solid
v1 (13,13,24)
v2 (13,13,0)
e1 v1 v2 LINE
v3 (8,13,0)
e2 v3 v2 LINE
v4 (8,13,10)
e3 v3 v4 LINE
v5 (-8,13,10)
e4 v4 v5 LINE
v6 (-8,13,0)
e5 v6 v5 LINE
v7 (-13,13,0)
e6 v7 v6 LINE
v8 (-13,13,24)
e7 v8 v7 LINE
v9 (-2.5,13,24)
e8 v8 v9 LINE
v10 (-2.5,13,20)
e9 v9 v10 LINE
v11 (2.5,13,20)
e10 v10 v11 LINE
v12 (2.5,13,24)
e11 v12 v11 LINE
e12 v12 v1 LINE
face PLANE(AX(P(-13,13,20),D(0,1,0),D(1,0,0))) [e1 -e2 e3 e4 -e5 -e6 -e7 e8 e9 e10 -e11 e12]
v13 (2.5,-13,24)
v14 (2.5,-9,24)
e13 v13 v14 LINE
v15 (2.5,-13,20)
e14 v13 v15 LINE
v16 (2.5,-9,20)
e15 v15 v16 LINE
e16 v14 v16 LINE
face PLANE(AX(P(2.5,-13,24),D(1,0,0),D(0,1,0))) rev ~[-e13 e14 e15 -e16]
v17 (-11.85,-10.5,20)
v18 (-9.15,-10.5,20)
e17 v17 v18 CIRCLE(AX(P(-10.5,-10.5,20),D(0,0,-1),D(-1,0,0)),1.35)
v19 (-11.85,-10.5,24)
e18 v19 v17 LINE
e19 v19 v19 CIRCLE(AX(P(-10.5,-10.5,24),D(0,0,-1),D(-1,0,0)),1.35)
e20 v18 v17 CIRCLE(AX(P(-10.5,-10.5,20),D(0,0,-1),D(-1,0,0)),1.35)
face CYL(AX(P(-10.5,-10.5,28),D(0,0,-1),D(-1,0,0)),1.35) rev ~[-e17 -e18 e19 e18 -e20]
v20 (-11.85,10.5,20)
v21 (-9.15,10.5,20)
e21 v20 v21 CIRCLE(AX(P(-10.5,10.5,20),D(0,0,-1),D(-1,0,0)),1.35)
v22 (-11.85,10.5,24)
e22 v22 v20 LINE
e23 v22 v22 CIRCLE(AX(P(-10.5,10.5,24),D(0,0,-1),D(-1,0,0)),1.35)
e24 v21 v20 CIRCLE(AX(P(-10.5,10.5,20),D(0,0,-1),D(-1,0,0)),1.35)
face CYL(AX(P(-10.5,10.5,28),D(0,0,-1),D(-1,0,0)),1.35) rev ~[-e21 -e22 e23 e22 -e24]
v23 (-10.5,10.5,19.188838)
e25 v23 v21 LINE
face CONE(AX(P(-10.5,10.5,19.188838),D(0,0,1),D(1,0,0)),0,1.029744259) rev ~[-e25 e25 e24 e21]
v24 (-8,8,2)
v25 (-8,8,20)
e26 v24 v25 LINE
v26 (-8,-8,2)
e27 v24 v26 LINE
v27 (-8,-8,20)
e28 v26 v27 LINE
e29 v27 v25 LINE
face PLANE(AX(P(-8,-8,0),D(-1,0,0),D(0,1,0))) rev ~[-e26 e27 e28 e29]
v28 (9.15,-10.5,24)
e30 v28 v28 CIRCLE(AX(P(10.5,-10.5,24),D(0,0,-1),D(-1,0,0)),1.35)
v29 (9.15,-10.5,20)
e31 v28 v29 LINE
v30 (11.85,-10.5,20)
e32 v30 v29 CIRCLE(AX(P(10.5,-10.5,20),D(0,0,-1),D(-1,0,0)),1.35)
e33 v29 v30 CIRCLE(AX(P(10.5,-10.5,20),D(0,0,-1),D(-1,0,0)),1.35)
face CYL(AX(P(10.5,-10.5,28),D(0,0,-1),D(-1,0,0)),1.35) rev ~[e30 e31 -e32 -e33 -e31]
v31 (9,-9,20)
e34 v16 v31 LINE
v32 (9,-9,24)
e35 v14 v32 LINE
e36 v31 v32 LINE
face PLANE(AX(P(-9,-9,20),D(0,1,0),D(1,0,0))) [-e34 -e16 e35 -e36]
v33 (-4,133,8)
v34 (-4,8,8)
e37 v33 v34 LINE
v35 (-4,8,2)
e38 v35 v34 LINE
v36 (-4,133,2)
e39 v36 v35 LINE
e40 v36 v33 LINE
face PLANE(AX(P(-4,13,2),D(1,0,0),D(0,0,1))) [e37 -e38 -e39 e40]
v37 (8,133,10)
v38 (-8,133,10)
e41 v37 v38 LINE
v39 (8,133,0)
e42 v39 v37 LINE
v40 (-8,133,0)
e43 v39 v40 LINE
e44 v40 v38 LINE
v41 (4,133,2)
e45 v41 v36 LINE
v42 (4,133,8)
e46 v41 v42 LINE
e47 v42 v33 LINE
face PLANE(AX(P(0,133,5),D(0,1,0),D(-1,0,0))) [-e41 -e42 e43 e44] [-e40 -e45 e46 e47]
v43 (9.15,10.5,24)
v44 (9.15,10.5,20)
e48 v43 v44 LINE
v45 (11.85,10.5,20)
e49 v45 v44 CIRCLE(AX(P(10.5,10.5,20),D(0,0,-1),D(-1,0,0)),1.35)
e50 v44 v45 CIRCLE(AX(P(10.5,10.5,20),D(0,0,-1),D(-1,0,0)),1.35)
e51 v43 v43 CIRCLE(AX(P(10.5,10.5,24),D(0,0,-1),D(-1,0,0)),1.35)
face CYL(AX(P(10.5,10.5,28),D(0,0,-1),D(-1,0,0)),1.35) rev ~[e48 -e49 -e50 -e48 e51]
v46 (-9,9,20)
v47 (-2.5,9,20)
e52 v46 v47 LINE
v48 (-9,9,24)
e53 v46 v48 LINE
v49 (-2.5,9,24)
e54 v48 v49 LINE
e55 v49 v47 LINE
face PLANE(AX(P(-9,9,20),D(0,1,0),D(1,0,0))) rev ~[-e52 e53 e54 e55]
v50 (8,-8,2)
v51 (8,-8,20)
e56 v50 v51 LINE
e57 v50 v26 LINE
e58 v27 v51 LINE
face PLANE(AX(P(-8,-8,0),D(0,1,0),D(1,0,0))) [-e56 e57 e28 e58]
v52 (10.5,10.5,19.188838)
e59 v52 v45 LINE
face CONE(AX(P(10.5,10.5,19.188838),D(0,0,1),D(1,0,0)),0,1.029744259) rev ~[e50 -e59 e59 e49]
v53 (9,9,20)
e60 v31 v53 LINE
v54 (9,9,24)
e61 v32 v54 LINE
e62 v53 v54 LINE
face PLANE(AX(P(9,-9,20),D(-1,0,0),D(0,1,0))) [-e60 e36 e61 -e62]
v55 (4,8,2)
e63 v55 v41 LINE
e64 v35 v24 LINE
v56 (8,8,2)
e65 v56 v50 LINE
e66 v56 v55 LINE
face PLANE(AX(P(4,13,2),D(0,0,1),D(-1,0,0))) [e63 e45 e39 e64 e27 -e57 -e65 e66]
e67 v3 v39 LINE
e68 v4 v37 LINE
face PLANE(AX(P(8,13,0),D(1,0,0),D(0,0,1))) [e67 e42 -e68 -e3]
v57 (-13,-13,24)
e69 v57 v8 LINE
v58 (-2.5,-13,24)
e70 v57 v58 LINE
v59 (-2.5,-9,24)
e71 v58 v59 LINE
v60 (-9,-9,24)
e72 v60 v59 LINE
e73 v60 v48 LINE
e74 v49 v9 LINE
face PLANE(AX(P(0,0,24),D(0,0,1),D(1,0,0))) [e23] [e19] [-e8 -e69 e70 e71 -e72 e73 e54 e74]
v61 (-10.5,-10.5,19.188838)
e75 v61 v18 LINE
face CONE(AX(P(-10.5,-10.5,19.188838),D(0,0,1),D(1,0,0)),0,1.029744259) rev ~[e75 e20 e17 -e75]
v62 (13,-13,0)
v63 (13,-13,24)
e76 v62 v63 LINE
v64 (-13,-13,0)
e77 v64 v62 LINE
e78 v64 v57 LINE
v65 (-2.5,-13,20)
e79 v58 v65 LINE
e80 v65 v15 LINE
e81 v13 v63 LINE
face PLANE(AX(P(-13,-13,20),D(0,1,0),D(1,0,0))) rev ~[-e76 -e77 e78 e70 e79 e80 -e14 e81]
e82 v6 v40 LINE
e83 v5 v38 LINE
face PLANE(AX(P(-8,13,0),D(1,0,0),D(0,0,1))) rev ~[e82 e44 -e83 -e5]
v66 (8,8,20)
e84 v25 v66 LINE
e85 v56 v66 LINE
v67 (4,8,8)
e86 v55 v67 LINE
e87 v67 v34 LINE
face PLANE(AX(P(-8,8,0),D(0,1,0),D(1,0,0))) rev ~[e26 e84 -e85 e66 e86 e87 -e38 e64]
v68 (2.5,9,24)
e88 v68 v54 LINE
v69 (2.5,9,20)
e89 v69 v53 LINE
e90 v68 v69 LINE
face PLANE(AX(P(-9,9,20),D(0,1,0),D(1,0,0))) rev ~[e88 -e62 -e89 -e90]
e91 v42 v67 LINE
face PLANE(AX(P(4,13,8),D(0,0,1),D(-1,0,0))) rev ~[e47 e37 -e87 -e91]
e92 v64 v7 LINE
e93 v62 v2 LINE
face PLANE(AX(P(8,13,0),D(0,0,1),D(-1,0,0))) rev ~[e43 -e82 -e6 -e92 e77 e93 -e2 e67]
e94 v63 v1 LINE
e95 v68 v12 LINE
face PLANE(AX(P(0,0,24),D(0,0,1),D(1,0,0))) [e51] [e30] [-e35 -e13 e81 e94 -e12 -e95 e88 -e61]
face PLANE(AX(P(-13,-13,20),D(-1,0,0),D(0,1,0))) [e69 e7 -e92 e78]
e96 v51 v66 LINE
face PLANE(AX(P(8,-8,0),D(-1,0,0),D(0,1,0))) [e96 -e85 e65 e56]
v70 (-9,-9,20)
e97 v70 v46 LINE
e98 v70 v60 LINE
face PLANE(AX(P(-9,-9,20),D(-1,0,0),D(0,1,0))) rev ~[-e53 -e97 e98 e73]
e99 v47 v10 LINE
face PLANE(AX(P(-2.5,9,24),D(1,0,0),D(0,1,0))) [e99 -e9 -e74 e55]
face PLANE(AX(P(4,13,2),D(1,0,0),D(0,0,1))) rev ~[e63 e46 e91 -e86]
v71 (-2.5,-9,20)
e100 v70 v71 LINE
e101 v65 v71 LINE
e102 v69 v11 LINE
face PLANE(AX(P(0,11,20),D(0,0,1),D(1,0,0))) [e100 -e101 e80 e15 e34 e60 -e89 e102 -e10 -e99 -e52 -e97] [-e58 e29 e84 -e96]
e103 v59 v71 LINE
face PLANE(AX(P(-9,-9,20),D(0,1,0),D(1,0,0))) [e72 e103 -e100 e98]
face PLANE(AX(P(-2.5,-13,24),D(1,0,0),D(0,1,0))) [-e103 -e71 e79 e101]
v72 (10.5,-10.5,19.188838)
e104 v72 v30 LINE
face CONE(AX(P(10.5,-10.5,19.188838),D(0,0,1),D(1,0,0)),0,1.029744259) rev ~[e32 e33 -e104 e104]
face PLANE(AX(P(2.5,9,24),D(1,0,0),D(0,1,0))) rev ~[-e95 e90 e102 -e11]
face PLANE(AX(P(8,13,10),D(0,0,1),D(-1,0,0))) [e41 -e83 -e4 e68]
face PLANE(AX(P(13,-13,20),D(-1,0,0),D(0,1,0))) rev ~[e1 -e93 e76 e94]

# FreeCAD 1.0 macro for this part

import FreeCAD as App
import Part
import Sketcher


def add_polygon(sketch, points):
    """Adds a closed chain of lines whose ends are joined by coincident constraints."""
    first, n = sketch.GeometryCount, len(points)
    for a, b in zip(points, points[1:] + points[:1]):
        sketch.addGeometry(Part.LineSegment(App.Vector(*a, 0), App.Vector(*b, 0)), False)
    for i in range(n):
        sketch.addConstraint(Sketcher.Constraint("Coincident", first + i, 2, first + (i + 1) % n, 1))

doc = App.newDocument("Part")
body = doc.addObject("PartDesign::Body", "Body")

# Sketch on XY plane
sketch1 = body.newObject("Sketcher::SketchObject", "Sketch")
sketch1.AttachmentSupport = (doc.getObject("XY_Plane"), [""])
sketch1.MapMode = "FlatFace"
add_polygon(sketch1, [(-13, 13), (-13, -13), (13, -13), (13, 13)])  # lines 0-3
sketch1.addConstraint(Sketcher.Constraint("Vertical", 0))
sketch1.addConstraint(Sketcher.Constraint("Horizontal", 1))
sketch1.addConstraint(Sketcher.Constraint("Vertical", 2))
sketch1.addConstraint(Sketcher.Constraint("Horizontal", 3))
sketch1.addConstraint(Sketcher.Constraint("Symmetric", 0, 2, 2, 2, -1, 1))
sketch1.addConstraint(Sketcher.Constraint("Equal", 3, 0))
sketch1.addConstraint(Sketcher.Constraint("DistanceX", 1, 1, 1, 2, 26.0))
pad1 = body.newObject("PartDesign::Pad", "Pad")
pad1.Profile = sketch1
pad1.Length = 2

# Sketch on XY plane
sketch2 = body.newObject("Sketcher::SketchObject", "Sketch001")
sketch2.AttachmentSupport = (doc.getObject("XY_Plane"), [""])
sketch2.MapMode = "FlatFace"
add_polygon(sketch2, [(-13, 13), (-13, -13), (13, -13), (13, 13)])  # lines 0-3
add_polygon(sketch2, [(8, -8), (-8, -8), (-8, 8), (8, 8)])  # lines 4-7
sketch2.addConstraint(Sketcher.Constraint("Vertical", 0))
sketch2.addConstraint(Sketcher.Constraint("Horizontal", 1))
sketch2.addConstraint(Sketcher.Constraint("Vertical", 2))
sketch2.addConstraint(Sketcher.Constraint("Horizontal", 3))
sketch2.addConstraint(Sketcher.Constraint("Horizontal", 4))
sketch2.addConstraint(Sketcher.Constraint("Vertical", 5))
sketch2.addConstraint(Sketcher.Constraint("Horizontal", 6))
sketch2.addConstraint(Sketcher.Constraint("Vertical", 7))
sketch2.addConstraint(Sketcher.Constraint("Symmetric", 0, 2, 2, 2, -1, 1))
sketch2.addConstraint(Sketcher.Constraint("Symmetric", 4, 2, 6, 2, -1, 1))
sketch2.addConstraint(Sketcher.Constraint("Equal", 3, 0))
sketch2.addConstraint(Sketcher.Constraint("Equal", 6, 5))
sketch2.addConstraint(Sketcher.Constraint("DistanceX", 1, 1, 1, 2, 26.0))
sketch2.addConstraint(Sketcher.Constraint("DistanceX", 4, 2, 4, 1, 16.0))
pad2 = body.newObject("PartDesign::Pad", "Pad001")
pad2.Profile = sketch2
pad2.Length = 20

# Sketch on XY plane
sketch3 = body.newObject("Sketcher::SketchObject", "Sketch002")
sketch3.AttachmentSupport = (doc.getObject("XY_Plane"), [""])
sketch3.MapMode = "FlatFace"
sketch3.AttachmentOffset = App.Placement(App.Vector(0, 0, 20), App.Rotation())
add_polygon(sketch3, [(-13, 13), (-13, -13), (13, -13), (13, 13)])  # lines 0-3
add_polygon(sketch3, [(9, -9), (-9, -9), (-9, 9), (9, 9)])  # lines 4-7
sketch3.addConstraint(Sketcher.Constraint("Vertical", 0))
sketch3.addConstraint(Sketcher.Constraint("Horizontal", 1))
sketch3.addConstraint(Sketcher.Constraint("Vertical", 2))
sketch3.addConstraint(Sketcher.Constraint("Horizontal", 3))
sketch3.addConstraint(Sketcher.Constraint("Horizontal", 4))
sketch3.addConstraint(Sketcher.Constraint("Vertical", 5))
sketch3.addConstraint(Sketcher.Constraint("Horizontal", 6))
sketch3.addConstraint(Sketcher.Constraint("Vertical", 7))
sketch3.addConstraint(Sketcher.Constraint("Symmetric", 0, 2, 2, 2, -1, 1))
sketch3.addConstraint(Sketcher.Constraint("Symmetric", 4, 2, 6, 2, -1, 1))
sketch3.addConstraint(Sketcher.Constraint("Equal", 3, 0))
sketch3.addConstraint(Sketcher.Constraint("Equal", 6, 5))
sketch3.addConstraint(Sketcher.Constraint("DistanceX", 1, 1, 1, 2, 26.0))
sketch3.addConstraint(Sketcher.Constraint("DistanceX", 4, 2, 4, 1, 18.0))
pad3 = body.newObject("PartDesign::Pad", "Pad002")
pad3.Profile = sketch3
pad3.Length = 4

# Sketch on XY plane
sketch4 = body.newObject("Sketcher::SketchObject", "Sketch003")
sketch4.AttachmentSupport = (doc.getObject("XY_Plane"), [""])
sketch4.MapMode = "FlatFace"
sketch4.AttachmentOffset = App.Placement(App.Vector(0, 0, 24), App.Rotation())
add_polygon(sketch4, [(-2.5, -9), (-2.5, -13), (2.5, -13), (2.5, -9)])  # lines 0-3
add_polygon(sketch4, [(-2.5, 13), (-2.5, 9), (2.5, 9), (2.5, 13)])  # lines 4-7
sketch4.addConstraint(Sketcher.Constraint("Vertical", 0))
sketch4.addConstraint(Sketcher.Constraint("Horizontal", 1))
sketch4.addConstraint(Sketcher.Constraint("Vertical", 2))
sketch4.addConstraint(Sketcher.Constraint("Horizontal", 3))
sketch4.addConstraint(Sketcher.Constraint("Vertical", 4))
sketch4.addConstraint(Sketcher.Constraint("Horizontal", 5))
sketch4.addConstraint(Sketcher.Constraint("Vertical", 6))
sketch4.addConstraint(Sketcher.Constraint("Horizontal", 7))
sketch4.addConstraint(Sketcher.Constraint("Symmetric", 2, 2, 4, 2, -1, 1))
sketch4.addConstraint(Sketcher.Constraint("Symmetric", 0, 2, 6, 2, -1, 1))
sketch4.addConstraint(Sketcher.Constraint("Vertical", 3, 2, 4, 2))
sketch4.addConstraint(Sketcher.Constraint("DistanceX", 1, 1, 1, 2, 5.0))
sketch4.addConstraint(Sketcher.Constraint("DistanceY", 0, 2, 0, 1, 4.0))
sketch4.addConstraint(Sketcher.Constraint("DistanceY", 0, 2, -1, 1, 13.0))
pocket1 = body.newObject("PartDesign::Pocket", "Pocket")
pocket1.Profile = sketch4
pocket1.Length = 4

# Sketch on XY plane
sketch5 = body.newObject("Sketcher::SketchObject", "Sketch004")
sketch5.AttachmentSupport = (doc.getObject("XY_Plane"), [""])
sketch5.MapMode = "FlatFace"
sketch5.AttachmentOffset = App.Placement(App.Vector(0, 0, 24), App.Rotation())
sketch5.addGeometry(Part.Circle(App.Vector(-10.5, 10.5, 0), App.Vector(0, 0, 1), 1.4), False)
sketch5.addGeometry(Part.Circle(App.Vector(10.5, 10.5, 0), App.Vector(0, 0, 1), 1.4), False)
sketch5.addGeometry(Part.Circle(App.Vector(-10.5, -10.5, 0), App.Vector(0, 0, 1), 1.4), False)
sketch5.addGeometry(Part.Circle(App.Vector(10.5, -10.5, 0), App.Vector(0, 0, 1), 1.4), False)
sketch5.addConstraint(Sketcher.Constraint("Equal", 0, 1))
sketch5.addConstraint(Sketcher.Constraint("Equal", 1, 2))
sketch5.addConstraint(Sketcher.Constraint("Equal", 2, 3))
sketch5.addConstraint(Sketcher.Constraint("Symmetric", 1, 3, 2, 3, -1, 1))
sketch5.addConstraint(Sketcher.Constraint("Symmetric", 0, 3, 3, 3, -1, 1))
sketch5.addConstraint(Sketcher.Constraint("Symmetric", 0, 3, 1, 3, -2))
sketch5.addConstraint(Sketcher.Constraint("Diameter", 0, 2.7))
sketch5.addConstraint(Sketcher.Constraint("DistanceX", 0, 3, 1, 3, 21.0))
sketch5.addConstraint(Sketcher.Constraint("DistanceY", 2, 3, 0, 3, 21.0))
doc.recompute()
hole = body.newObject("PartDesign::Hole", "Hole")
hole.Profile = sketch5
hole.ThreadType = "None"
hole.Diameter = 2.7
hole.DepthType = "Dimension"
hole.Depth = 4
hole.DrillPoint = "Angled"
hole.DrillPointAngle = 118

# Sketch on XZ plane
sketch6 = body.newObject("Sketcher::SketchObject", "Sketch005")
sketch6.AttachmentSupport = (doc.getObject("XZ_Plane"), [""])
sketch6.MapMode = "FlatFace"
sketch6.AttachmentOffset = App.Placement(App.Vector(0, 0, -13), App.Rotation())
add_polygon(sketch6, [(4, 8), (4, 2), (-4, 2), (-4, 8)])  # lines 0-3
sketch6.addConstraint(Sketcher.Constraint("Vertical", 0))
sketch6.addConstraint(Sketcher.Constraint("Horizontal", 1))
sketch6.addConstraint(Sketcher.Constraint("Vertical", 2))
sketch6.addConstraint(Sketcher.Constraint("Horizontal", 3))
sketch6.addConstraint(Sketcher.Constraint("DistanceX", 1, 2, 1, 1, 8.0))
sketch6.addConstraint(Sketcher.Constraint("DistanceY", 0, 2, 0, 1, 6.0))
sketch6.addConstraint(Sketcher.Constraint("DistanceX", -1, 1, 0, 2, 4.0))
sketch6.addConstraint(Sketcher.Constraint("DistanceY", -1, 1, 0, 2, 2.0))
pocket2 = body.newObject("PartDesign::Pocket", "Pocket001")
pocket2.Profile = sketch6
pocket2.Length = 10.28
pocket2.Reversed = True

# Sketch on XZ plane
sketch7 = body.newObject("Sketcher::SketchObject", "Sketch006")
sketch7.AttachmentSupport = (doc.getObject("XZ_Plane"), [""])
sketch7.MapMode = "FlatFace"
sketch7.AttachmentOffset = App.Placement(App.Vector(0, 0, -13), App.Rotation())
add_polygon(sketch7, [(8, 10), (8, 0), (-8, 0), (-8, 10)])  # lines 0-3
add_polygon(sketch7, [(-4, 2), (4, 2), (4, 8), (-4, 8)])  # lines 4-7
sketch7.addConstraint(Sketcher.Constraint("Vertical", 0))
sketch7.addConstraint(Sketcher.Constraint("Horizontal", 1))
sketch7.addConstraint(Sketcher.Constraint("Vertical", 2))
sketch7.addConstraint(Sketcher.Constraint("Horizontal", 3))
sketch7.addConstraint(Sketcher.Constraint("Horizontal", 4))
sketch7.addConstraint(Sketcher.Constraint("Vertical", 5))
sketch7.addConstraint(Sketcher.Constraint("Horizontal", 6))
sketch7.addConstraint(Sketcher.Constraint("Vertical", 7))
sketch7.addConstraint(Sketcher.Constraint("Symmetric", 0, 2, 1, 2, -1, 1))
sketch7.addConstraint(Sketcher.Constraint("DistanceX", 1, 2, 1, 1, 16.0))
sketch7.addConstraint(Sketcher.Constraint("DistanceX", 4, 1, 4, 2, 8.0))
sketch7.addConstraint(Sketcher.Constraint("DistanceY", 0, 2, 0, 1, 10.0))
sketch7.addConstraint(Sketcher.Constraint("DistanceY", 5, 1, 5, 2, 6.0))
sketch7.addConstraint(Sketcher.Constraint("DistanceX", -1, 1, 4, 2, 4.0))
sketch7.addConstraint(Sketcher.Constraint("DistanceY", -1, 1, 4, 2, 2.0))
pad4 = body.newObject("PartDesign::Pad", "Pad003")
pad4.Profile = sketch7
pad4.Length = 120
pad4.Reversed = True

doc.recompute()
